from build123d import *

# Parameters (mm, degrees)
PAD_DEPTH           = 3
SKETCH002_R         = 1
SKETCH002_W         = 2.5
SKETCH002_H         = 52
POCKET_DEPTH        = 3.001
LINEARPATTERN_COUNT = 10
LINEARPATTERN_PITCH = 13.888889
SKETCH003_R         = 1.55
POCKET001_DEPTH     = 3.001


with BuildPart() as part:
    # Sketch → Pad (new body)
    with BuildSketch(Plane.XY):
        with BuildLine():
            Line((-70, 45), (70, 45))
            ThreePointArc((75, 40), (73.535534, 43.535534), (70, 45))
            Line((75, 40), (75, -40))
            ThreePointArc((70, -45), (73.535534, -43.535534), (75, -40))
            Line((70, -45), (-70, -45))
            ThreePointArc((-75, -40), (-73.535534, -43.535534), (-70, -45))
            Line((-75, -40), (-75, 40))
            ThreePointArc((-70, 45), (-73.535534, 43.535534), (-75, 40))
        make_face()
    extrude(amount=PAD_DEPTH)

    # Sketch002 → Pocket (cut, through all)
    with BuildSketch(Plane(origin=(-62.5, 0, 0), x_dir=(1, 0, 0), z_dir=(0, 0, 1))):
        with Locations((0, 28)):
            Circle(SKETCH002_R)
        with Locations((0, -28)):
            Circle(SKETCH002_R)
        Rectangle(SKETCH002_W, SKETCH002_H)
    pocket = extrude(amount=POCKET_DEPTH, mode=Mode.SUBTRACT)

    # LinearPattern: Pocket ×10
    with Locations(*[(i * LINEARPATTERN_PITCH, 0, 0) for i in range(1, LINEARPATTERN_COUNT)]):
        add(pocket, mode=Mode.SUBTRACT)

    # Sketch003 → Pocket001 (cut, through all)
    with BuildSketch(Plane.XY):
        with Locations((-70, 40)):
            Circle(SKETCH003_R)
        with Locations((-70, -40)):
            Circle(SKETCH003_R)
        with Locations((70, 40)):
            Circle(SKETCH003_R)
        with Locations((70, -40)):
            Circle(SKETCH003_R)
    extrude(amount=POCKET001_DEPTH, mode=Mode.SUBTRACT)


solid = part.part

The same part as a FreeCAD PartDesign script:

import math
import FreeCAD as App
import Part
import Sketcher
Q = App.Units.Quantity

doc = App.newDocument("Part")
body = doc.addObject("PartDesign::Body", "Body")

# Sketch on XY plane
sketch1 = body.newObject("Sketcher::SketchObject", "Sketch")
sketch1.AttachmentSupport = (doc.getObject("XY_Plane"), [""])
sketch1.MapMode = "FlatFace"
sketch1.addGeometry([
    Part.LineSegment(App.Vector(70, 45, 0), App.Vector(-70, 45, 0)),  # 0
    Part.ArcOfCircle(Part.Circle(App.Vector(-70, 40, 0), App.Vector(0, 0, 1), 5), math.radians(89.999996), math.radians(180.000004)),  # 1
    Part.LineSegment(App.Vector(-75, 40, 0), App.Vector(-75, -40, 0)),  # 2
    Part.ArcOfCircle(Part.Circle(App.Vector(-70, -40, 0), App.Vector(0, 0, 1), 5), math.radians(179.999996), math.radians(270.000004)),  # 3
    Part.LineSegment(App.Vector(-70, -45, 0), App.Vector(70, -45, 0)),  # 4
    Part.ArcOfCircle(Part.Circle(App.Vector(70, -40, 0), App.Vector(0, 0, 1), 5), math.radians(-90.000004), math.radians(0.000004)),  # 5
    Part.LineSegment(App.Vector(75, -40, 0), App.Vector(75, 40, 0)),  # 6
    Part.ArcOfCircle(Part.Circle(App.Vector(70, 40, 0), App.Vector(0, 0, 1), 5), math.radians(-0.000004), math.radians(90.000004)),  # 7
], False)
sketch1.addConstraint([
    Sketcher.Constraint("Tangent", 0, 2, 1, 1),
    Sketcher.Constraint("Tangent", 1, 2, 2, 1),
    Sketcher.Constraint("Tangent", 2, 2, 3, 1),
    Sketcher.Constraint("Tangent", 3, 2, 4, 1),
    Sketcher.Constraint("Tangent", 4, 2, 5, 1),
    Sketcher.Constraint("Tangent", 5, 2, 6, 1),
    Sketcher.Constraint("Tangent", 6, 2, 7, 1),
    Sketcher.Constraint("Tangent", 7, 2, 0, 1),
    Sketcher.Constraint("Horizontal", 0),
    Sketcher.Constraint("Vertical", 2),
    Sketcher.Constraint("Horizontal", 4),
    Sketcher.Constraint("Vertical", 6),
    Sketcher.Constraint("Equal", 1, 3),
    Sketcher.Constraint("Equal", 3, 5),
    Sketcher.Constraint("Equal", 5, 7),
    Sketcher.Constraint("Symmetric", 1, 3, 5, 3, -1, 1),
    Sketcher.Constraint("Radius", 1, Q("5 mm")),
    Sketcher.Constraint("DistanceX", 0, 2, 0, 1, Q("140 mm")),
    Sketcher.Constraint("DistanceY", 2, 2, 2, 1, Q("80 mm")),
])
pad1 = body.newObject("PartDesign::Pad", "Pad")
pad1.Profile = sketch1
pad1.Length = 3

# Sketch on XY plane
sketch2 = body.newObject("Sketcher::SketchObject", "Sketch001")
sketch2.AttachmentSupport = (doc.getObject("XY_Plane"), [""])
sketch2.MapMode = "FlatFace"
sketch2.addGeometry([
    Part.Circle(App.Vector(-62.5, 28, 0), App.Vector(0, 0, 1), 1),  # 0
    Part.Circle(App.Vector(-62.5, -28, 0), App.Vector(0, 0, 1), 1),  # 1
    Part.LineSegment(App.Vector(-63.75, 26, 0), App.Vector(-63.75, -26, 0)),  # 2
    Part.LineSegment(App.Vector(-63.75, -26, 0), App.Vector(-61.25, -26, 0)),  # 3
    Part.LineSegment(App.Vector(-61.25, -26, 0), App.Vector(-61.25, 26, 0)),  # 4
    Part.LineSegment(App.Vector(-61.25, 26, 0), App.Vector(-63.75, 26, 0)),  # 5
], False)
sketch2.addConstraint([
    Sketcher.Constraint("Coincident", 2, 2, 3, 1),
    Sketcher.Constraint("Coincident", 3, 2, 4, 1),
    Sketcher.Constraint("Coincident", 4, 2, 5, 1),
    Sketcher.Constraint("Coincident", 5, 2, 2, 1),
    Sketcher.Constraint("Vertical", 2),
    Sketcher.Constraint("Horizontal", 3),
    Sketcher.Constraint("Vertical", 4),
    Sketcher.Constraint("Horizontal", 5),
    Sketcher.Constraint("Equal", 0, 1),
    Sketcher.Constraint("Symmetric", 0, 3, 1, 3, -1),
    Sketcher.Constraint("Diameter", 0, Q("2 mm")),
    Sketcher.Constraint("DistanceY", 2, 2, 2, 1, Q("52 mm")),
    Sketcher.Constraint("DistanceX", 3, 1, 3, 2, Q("2.5 mm")),
    Sketcher.Constraint("DistanceY", -1, 1, 0, 3, Q("28 mm")),
    Sketcher.Constraint("DistanceY", 2, 2, -1, 1, Q("26 mm")),
    Sketcher.Constraint("DistanceX", 0, 3, -1, 1, Q("62.5 mm")),
    Sketcher.Constraint("DistanceX", 2, 2, -1, 1, Q("63.75 mm")),
])
pocket1 = body.newObject("PartDesign::Pocket", "Pocket")
pocket1.Profile = sketch2
pocket1.Type = "ThroughAll"
pocket1.Reversed = True
doc.recompute()

linearpattern = body.newObject("PartDesign::LinearPattern", "LinearPattern")
linearpattern.Originals = [pocket1]
linearpattern.Direction = (doc.getObject("X_Axis"), [""])
linearpattern.Mode = "offset"
linearpattern.Offset = 13.888889
linearpattern.Occurrences = 10
body.Tip = linearpattern

# Sketch on XY plane
sketch3 = body.newObject("Sketcher::SketchObject", "Sketch002")
sketch3.AttachmentSupport = (doc.getObject("XY_Plane"), [""])
sketch3.MapMode = "FlatFace"
sketch3.addGeometry([
    Part.Circle(App.Vector(-70, 40, 0), App.Vector(0, 0, 1), 1.55),
    Part.Circle(App.Vector(-70, -40, 0), App.Vector(0, 0, 1), 1.55),
    Part.Circle(App.Vector(70, 40, 0), App.Vector(0, 0, 1), 1.55),
    Part.Circle(App.Vector(70, -40, 0), App.Vector(0, 0, 1), 1.55),
], False)
sketch3.addConstraint([
    Sketcher.Constraint("Equal", 0, 1),
    Sketcher.Constraint("Equal", 1, 2),
    Sketcher.Constraint("Equal", 2, 3),
    Sketcher.Constraint("Symmetric", 1, 3, 2, 3, -1, 1),
    Sketcher.Constraint("Symmetric", 0, 3, 3, 3, -1, 1),
    Sketcher.Constraint("Symmetric", 0, 3, 2, 3, -2),
    Sketcher.Constraint("Diameter", 0, Q("3.1 mm")),
    Sketcher.Constraint("DistanceX", 0, 3, -1, 1, Q("70 mm")),
    Sketcher.Constraint("DistanceY", -1, 1, 0, 3, Q("40 mm")),
])
pocket2 = body.newObject("PartDesign::Pocket", "Pocket001")
pocket2.Profile = sketch3
pocket2.Type = "ThroughAll"
pocket2.Reversed = True

doc.recompute()
